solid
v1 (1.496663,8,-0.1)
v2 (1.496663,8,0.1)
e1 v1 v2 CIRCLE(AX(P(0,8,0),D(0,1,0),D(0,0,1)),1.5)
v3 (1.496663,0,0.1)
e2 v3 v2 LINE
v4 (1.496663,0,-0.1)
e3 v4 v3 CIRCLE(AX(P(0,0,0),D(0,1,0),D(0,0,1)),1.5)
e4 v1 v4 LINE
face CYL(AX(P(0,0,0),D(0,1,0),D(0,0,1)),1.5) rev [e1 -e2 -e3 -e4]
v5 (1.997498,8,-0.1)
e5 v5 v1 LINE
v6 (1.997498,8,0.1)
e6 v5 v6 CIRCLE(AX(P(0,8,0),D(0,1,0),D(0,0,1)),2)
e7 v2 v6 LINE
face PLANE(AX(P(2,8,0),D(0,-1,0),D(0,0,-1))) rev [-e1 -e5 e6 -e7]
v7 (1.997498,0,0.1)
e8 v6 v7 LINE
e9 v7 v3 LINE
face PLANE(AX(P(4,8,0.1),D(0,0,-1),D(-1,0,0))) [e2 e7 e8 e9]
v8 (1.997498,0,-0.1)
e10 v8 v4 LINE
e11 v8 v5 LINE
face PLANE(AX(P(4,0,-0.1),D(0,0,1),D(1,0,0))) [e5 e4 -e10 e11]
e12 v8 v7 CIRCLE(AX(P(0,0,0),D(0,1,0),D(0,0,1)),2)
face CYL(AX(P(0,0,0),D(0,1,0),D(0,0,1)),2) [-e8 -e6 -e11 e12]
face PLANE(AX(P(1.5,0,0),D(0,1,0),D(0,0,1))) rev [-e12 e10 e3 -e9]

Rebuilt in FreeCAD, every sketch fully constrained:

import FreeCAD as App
import Part
import Sketcher
Q = App.Units.Quantity

doc = App.newDocument("Part")
params = doc.addObject("Spreadsheet::Sheet", "Params")
for row, (alias, value) in enumerate([
    ("sketch1_height", "8 mm"),
    ("sketch1_width", "0.5 mm"),
    ("revolution_angle", "360 deg"),
    ("sketch2_width", "8 mm"),
    ("sketch2_height", "0.2 mm"),
    ("pocket1_length", "4 mm"),
], start=1):
    params.set(f"A{row}", alias)
    params.set(f"B{row}", "=" + value)
    params.setAlias(f"B{row}", alias)

body = doc.addObject("PartDesign::Body", "Body")

# Sketch on XY plane
sketch1 = body.newObject("Sketcher::SketchObject", "Sketch")
sketch1.AttachmentSupport = (doc.getObject("XY_Plane"), [""])
sketch1.MapMode = "FlatFace"
sketch1.addGeometry(Part.LineSegment(App.Vector(1.5, 8, 0), App.Vector(1.5, 0, 0)), False)
sketch1.addGeometry(Part.LineSegment(App.Vector(1.5, 0, 0), App.Vector(2, 0, 0)), False)
sketch1.addGeometry(Part.LineSegment(App.Vector(2, 0, 0), App.Vector(2, 8, 0)), False)
sketch1.addGeometry(Part.LineSegment(App.Vector(2, 8, 0), App.Vector(1.5, 8, 0)), False)
sketch1.addConstraint(Sketcher.Constraint("Coincident", 0, 2, 1, 1))
sketch1.addConstraint(Sketcher.Constraint("Coincident", 1, 2, 2, 1))
sketch1.addConstraint(Sketcher.Constraint("Coincident", 2, 2, 3, 1))
sketch1.addConstraint(Sketcher.Constraint("Coincident", 3, 2, 0, 1))
sketch1.addConstraint(Sketcher.Constraint("Vertical", 0))
sketch1.addConstraint(Sketcher.Constraint("Horizontal", 1))
sketch1.addConstraint(Sketcher.Constraint("Vertical", 2))
sketch1.addConstraint(Sketcher.Constraint("Horizontal", 3))
sketch1.addConstraint(Sketcher.Constraint("PointOnObject", 0, 2, -1))
sketch1.addConstraint(Sketcher.Constraint("DistanceY", 0, 2, 0, 1, Q("8 mm")))
sketch1.addConstraint(Sketcher.Constraint("DistanceX", 1, 1, 1, 2, Q("0.5 mm")))
sketch1.addConstraint(Sketcher.Constraint("DistanceX", -1, 1, 1, 2, Q("2 mm")))
sketch1.setExpression("Constraints[9]", "Params.sketch1_height")
sketch1.setExpression("Constraints[10]", "Params.sketch1_width")
revolution = body.newObject("PartDesign::Revolution", "Revolution")
revolution.Profile = sketch1
revolution.ReferenceAxis = (sketch1, ["V_Axis"])
revolution.setExpression("Angle", "Params.revolution_angle")

# Sketch on YZ plane
sketch2 = body.newObject("Sketcher::SketchObject", "Sketch001")
sketch2.AttachmentSupport = (doc.getObject("YZ_Plane"), [""])
sketch2.MapMode = "FlatFace"
sketch2.addGeometry(Part.LineSegment(App.Vector(8, 0.1, 0), App.Vector(0, 0.1, 0)), False)
sketch2.addGeometry(Part.LineSegment(App.Vector(0, 0.1, 0), App.Vector(0, -0.1, 0)), False)
sketch2.addGeometry(Part.LineSegment(App.Vector(0, -0.1, 0), App.Vector(8, -0.1, 0)), False)
sketch2.addGeometry(Part.LineSegment(App.Vector(8, -0.1, 0), App.Vector(8, 0.1, 0)), False)
sketch2.addConstraint(Sketcher.Constraint("Coincident", 0, 2, 1, 1))
sketch2.addConstraint(Sketcher.Constraint("Coincident", 1, 2, 2, 1))
sketch2.addConstraint(Sketcher.Constraint("Coincident", 2, 2, 3, 1))
sketch2.addConstraint(Sketcher.Constraint("Coincident", 3, 2, 0, 1))
sketch2.addConstraint(Sketcher.Constraint("Horizontal", 0))
sketch2.addConstraint(Sketcher.Constraint("Vertical", 1))
sketch2.addConstraint(Sketcher.Constraint("Horizontal", 2))
sketch2.addConstraint(Sketcher.Constraint("Vertical", 3))
sketch2.addConstraint(Sketcher.Constraint("Symmetric", 0, 2, 1, 2, -1, 1))
sketch2.addConstraint(Sketcher.Constraint("DistanceX", 0, 2, 0, 1, Q("8 mm")))
sketch2.addConstraint(Sketcher.Constraint("DistanceY", 1, 2, 1, 1, Q("0.2 mm")))
sketch2.setExpression("Constraints[9]", "Params.sketch2_width")
sketch2.setExpression("Constraints[10]", "Params.sketch2_height")
pocket1 = body.newObject("PartDesign::Pocket", "Pocket")
pocket1.Profile = sketch2
pocket1.setExpression("Length", "Params.pocket1_length")
pocket1.Reversed = True

doc.recompute()
